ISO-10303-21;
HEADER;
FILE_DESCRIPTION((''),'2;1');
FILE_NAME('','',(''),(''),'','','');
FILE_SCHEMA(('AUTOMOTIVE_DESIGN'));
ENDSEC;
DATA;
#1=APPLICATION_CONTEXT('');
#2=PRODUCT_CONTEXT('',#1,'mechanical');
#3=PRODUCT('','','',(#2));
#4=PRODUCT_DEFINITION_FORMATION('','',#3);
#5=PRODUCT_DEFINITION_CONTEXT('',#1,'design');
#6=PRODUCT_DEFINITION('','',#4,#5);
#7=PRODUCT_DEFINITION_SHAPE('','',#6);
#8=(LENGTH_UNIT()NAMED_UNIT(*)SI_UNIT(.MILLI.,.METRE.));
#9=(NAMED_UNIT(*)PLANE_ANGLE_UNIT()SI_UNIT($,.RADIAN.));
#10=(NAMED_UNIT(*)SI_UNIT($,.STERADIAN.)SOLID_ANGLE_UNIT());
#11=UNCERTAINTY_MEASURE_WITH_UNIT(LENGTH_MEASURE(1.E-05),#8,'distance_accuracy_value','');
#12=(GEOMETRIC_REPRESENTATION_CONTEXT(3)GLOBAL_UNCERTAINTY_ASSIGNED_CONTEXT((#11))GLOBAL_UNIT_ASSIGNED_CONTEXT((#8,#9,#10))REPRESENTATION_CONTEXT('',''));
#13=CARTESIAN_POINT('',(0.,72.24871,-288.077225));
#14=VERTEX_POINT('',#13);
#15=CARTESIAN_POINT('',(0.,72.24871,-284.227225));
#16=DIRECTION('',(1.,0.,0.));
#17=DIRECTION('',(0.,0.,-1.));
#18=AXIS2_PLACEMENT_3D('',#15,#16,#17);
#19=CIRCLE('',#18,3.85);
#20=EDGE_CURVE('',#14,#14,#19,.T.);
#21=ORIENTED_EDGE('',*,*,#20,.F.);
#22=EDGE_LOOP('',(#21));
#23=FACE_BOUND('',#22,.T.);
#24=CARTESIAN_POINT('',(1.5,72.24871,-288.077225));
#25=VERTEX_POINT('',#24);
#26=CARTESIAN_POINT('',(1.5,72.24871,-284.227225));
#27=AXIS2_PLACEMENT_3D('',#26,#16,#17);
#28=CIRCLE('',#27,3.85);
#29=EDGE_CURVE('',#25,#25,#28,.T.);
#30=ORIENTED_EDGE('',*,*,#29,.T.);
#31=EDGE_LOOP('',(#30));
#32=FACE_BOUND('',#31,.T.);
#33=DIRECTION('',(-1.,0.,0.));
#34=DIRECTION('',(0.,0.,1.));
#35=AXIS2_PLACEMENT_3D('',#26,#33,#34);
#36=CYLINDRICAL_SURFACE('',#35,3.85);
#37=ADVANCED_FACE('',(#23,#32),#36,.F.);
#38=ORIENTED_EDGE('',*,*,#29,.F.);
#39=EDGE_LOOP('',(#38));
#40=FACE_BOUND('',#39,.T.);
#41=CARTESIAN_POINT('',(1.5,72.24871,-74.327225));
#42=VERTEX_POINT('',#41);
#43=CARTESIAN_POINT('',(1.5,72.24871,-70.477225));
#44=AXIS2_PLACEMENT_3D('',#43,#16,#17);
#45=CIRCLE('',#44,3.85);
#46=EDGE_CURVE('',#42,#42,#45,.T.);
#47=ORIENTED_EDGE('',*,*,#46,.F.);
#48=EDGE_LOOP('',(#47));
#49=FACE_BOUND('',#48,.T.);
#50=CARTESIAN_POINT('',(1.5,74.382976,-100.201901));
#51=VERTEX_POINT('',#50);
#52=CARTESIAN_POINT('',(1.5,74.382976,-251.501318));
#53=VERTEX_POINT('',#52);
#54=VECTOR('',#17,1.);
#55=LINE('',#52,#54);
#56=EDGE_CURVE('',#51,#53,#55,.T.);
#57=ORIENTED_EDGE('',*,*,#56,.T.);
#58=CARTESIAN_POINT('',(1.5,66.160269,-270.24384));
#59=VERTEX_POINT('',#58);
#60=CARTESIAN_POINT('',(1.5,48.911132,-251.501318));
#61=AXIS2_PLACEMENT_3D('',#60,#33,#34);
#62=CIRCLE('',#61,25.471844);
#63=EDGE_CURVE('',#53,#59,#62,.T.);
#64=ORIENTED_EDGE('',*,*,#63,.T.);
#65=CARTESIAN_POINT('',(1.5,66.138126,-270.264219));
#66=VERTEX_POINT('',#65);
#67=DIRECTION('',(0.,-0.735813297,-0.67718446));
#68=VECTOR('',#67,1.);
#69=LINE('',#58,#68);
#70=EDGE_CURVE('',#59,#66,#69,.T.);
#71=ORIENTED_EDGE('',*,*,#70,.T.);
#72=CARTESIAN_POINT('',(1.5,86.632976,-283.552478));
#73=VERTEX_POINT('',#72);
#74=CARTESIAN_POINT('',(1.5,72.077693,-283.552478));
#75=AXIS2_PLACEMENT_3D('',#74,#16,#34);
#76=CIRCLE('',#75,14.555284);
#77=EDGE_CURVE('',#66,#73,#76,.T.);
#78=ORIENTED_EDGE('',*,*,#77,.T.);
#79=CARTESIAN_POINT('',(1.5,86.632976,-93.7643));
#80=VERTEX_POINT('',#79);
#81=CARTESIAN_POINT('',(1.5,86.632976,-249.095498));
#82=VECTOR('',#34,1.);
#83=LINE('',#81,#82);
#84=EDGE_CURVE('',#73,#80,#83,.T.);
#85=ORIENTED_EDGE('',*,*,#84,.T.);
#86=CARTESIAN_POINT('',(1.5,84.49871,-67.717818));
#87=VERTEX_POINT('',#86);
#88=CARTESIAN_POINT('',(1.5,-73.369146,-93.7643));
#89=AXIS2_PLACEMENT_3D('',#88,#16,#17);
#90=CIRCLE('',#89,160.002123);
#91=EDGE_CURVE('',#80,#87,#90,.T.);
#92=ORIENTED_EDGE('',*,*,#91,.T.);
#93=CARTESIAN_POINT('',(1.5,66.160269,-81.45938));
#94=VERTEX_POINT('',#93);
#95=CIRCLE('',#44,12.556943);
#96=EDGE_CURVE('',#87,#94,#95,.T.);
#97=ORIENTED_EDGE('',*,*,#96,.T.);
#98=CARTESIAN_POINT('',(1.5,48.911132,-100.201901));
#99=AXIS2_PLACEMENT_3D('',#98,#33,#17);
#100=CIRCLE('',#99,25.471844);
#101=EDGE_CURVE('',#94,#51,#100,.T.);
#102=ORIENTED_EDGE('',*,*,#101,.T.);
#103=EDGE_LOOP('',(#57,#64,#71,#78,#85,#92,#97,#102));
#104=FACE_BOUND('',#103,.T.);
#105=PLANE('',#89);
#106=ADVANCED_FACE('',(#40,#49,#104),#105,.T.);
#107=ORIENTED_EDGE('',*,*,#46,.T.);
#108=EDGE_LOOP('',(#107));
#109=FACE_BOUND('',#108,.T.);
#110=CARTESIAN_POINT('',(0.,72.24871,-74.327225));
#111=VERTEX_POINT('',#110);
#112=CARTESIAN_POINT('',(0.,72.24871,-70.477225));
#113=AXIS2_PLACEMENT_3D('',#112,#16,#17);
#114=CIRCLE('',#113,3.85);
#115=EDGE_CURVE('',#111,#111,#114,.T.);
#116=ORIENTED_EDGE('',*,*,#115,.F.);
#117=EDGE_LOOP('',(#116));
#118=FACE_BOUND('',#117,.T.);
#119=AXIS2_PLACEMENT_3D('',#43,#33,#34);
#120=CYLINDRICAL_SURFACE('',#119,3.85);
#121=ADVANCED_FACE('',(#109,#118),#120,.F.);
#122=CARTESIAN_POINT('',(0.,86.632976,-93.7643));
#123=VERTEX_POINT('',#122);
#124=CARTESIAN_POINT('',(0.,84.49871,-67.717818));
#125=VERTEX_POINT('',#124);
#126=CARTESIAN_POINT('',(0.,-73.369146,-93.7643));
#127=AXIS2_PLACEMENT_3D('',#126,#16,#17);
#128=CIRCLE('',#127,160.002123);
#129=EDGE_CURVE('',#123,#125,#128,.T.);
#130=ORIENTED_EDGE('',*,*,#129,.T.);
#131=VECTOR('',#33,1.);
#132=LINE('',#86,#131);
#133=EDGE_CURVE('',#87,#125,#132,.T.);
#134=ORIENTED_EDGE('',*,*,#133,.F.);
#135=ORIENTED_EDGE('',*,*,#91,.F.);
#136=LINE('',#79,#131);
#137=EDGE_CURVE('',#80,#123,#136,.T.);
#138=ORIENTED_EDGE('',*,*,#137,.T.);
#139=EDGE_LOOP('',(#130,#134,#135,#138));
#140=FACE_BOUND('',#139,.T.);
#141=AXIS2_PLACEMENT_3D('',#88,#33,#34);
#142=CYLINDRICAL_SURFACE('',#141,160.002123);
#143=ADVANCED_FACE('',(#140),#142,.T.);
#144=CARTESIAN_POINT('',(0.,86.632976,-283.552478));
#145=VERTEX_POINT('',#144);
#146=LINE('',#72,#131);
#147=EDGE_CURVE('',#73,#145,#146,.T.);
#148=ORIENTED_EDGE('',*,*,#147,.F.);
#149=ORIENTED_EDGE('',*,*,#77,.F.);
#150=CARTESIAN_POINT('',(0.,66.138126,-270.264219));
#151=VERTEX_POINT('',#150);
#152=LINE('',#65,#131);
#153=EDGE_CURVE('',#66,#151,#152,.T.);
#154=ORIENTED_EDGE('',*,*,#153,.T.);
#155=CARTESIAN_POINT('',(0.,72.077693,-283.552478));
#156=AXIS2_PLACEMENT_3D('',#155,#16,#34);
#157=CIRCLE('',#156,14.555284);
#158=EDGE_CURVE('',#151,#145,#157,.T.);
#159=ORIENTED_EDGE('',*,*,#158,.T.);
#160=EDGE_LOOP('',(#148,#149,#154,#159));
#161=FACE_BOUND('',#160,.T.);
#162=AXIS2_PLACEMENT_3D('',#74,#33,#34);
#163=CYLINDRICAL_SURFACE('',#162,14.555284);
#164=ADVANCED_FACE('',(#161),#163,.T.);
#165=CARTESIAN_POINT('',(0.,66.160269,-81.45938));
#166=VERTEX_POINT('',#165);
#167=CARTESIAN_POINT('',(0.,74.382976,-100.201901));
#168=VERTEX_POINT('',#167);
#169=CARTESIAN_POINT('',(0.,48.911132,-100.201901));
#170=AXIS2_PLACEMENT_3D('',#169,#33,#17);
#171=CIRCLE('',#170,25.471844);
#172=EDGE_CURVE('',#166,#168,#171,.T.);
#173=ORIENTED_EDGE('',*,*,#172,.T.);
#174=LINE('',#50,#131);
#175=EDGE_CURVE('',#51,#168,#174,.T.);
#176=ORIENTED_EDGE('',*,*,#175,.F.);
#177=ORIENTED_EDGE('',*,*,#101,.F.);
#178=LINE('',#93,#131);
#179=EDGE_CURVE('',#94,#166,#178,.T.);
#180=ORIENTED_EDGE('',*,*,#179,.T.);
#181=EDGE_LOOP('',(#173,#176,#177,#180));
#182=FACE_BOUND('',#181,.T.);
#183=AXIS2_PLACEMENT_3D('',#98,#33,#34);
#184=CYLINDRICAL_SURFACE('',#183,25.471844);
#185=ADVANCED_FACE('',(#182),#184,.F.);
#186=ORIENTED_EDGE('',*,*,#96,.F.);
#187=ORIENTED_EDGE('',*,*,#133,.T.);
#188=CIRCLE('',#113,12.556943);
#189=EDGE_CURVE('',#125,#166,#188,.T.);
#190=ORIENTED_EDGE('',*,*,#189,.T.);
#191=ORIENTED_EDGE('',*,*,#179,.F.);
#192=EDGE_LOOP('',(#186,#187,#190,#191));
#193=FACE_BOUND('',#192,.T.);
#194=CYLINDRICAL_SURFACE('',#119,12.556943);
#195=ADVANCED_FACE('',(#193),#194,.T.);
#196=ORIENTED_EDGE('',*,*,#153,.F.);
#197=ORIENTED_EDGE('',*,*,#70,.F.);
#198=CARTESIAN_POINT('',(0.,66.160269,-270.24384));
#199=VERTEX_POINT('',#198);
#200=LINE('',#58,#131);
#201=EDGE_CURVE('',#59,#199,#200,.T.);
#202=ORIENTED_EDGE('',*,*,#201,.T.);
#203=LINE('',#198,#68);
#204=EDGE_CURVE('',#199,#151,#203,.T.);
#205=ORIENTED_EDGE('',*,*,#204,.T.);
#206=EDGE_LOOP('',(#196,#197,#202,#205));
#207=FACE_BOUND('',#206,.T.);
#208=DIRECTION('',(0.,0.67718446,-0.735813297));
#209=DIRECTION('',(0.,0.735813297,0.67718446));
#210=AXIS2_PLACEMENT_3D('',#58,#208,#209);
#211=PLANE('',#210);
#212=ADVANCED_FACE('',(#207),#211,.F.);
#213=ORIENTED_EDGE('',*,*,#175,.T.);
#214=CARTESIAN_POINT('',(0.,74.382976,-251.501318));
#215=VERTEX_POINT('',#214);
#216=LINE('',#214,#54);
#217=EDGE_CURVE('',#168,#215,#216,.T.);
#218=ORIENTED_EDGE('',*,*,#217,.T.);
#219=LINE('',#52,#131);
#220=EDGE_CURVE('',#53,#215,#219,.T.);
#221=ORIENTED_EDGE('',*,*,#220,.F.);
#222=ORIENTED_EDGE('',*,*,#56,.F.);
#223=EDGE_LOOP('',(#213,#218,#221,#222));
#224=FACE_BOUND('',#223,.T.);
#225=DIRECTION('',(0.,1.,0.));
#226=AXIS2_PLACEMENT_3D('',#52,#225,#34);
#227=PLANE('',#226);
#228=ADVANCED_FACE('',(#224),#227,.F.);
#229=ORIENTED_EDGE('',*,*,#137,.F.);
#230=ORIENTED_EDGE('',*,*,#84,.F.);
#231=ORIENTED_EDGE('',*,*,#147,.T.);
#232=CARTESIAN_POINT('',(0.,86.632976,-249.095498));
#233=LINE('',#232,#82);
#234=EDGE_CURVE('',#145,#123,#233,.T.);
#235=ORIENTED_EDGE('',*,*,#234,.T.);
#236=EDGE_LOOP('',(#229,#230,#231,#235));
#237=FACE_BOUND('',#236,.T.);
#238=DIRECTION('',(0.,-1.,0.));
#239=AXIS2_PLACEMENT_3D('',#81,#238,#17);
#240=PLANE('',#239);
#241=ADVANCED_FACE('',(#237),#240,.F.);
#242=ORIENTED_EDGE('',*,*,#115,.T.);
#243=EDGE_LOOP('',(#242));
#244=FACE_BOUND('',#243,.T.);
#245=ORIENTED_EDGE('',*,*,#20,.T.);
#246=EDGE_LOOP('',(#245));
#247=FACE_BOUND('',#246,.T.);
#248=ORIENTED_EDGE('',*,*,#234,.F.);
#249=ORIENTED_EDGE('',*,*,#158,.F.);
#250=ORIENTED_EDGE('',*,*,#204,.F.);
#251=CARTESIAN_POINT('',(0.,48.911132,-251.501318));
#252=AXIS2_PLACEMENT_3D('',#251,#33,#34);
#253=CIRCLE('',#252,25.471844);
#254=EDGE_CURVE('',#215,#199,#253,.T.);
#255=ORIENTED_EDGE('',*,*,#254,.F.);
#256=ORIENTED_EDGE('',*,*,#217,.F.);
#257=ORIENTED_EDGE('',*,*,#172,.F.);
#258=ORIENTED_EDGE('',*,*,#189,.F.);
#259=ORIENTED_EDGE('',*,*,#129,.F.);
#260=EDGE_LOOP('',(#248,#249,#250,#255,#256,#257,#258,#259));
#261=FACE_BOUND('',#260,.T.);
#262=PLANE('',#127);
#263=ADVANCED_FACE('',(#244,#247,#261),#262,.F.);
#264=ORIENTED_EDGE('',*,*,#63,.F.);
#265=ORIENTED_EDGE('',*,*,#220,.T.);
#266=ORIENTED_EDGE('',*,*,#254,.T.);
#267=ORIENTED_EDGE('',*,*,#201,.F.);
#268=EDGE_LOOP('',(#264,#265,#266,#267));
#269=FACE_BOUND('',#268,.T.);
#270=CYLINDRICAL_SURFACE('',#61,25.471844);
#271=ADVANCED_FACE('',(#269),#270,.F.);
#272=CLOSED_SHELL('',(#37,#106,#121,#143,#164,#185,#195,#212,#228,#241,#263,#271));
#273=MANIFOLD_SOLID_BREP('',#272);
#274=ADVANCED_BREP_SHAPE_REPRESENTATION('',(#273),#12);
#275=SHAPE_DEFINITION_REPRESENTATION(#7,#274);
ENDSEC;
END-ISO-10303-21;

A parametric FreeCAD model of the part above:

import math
import FreeCAD as App
import Part
import Sketcher

doc = App.newDocument("Part")
params = doc.addObject("Spreadsheet::Sheet", "Params")
for row, (alias, value) in enumerate([
    ("sketch1_diameter", "7.7 mm"),
    ("pad1_length", "1.5 mm"),
], start=1):
    params.set(f"A{row}", alias)
    params.set(f"B{row}", "=" + value)
    params.setAlias(f"B{row}", alias)

body = doc.addObject("PartDesign::Body", "Body")

# Sketch on YZ plane
sketch1 = doc.addObject("Sketcher::SketchObject", "Sketch")
body.addObject(sketch1)
sketch1.AttachmentSupport = (doc.YZ_Plane, [""])
sketch1.MapMode = "FlatFace"
sketch1.addGeometry(Part.LineSegment(App.Vector(74.383, -100.202, 0), App.Vector(74.383, -251.501, 0)), False)
sketch1.addGeometry(Part.ArcOfCircle(Part.Circle(App.Vector(48.911, -251.501, 0), App.Vector(0, 0, 1), 25.472), math.radians(-47), math.radians(0)), False)
sketch1.addGeometry(Part.LineSegment(App.Vector(66.16, -270.244, 0), App.Vector(66.138, -270.264, 0)), False)
sketch1.addGeometry(Part.ArcOfCircle(Part.Circle(App.Vector(72.078, -283.552, 0), App.Vector(0, 0, 1), 14.555), math.radians(114), math.radians(360)), False)
sketch1.addGeometry(Part.LineSegment(App.Vector(86.633, -283.552, 0), App.Vector(86.633, -93.764, 0)), False)
sketch1.addGeometry(Part.ArcOfCircle(Part.Circle(App.Vector(-73.369, -93.764, 0), App.Vector(0, 0, 1), 160.002), math.radians(0), math.radians(9.37)), False)
sketch1.addGeometry(Part.ArcOfCircle(Part.Circle(App.Vector(72.249, -70.477, 0), App.Vector(0, 0, 1), 12.557), math.radians(13), math.radians(241)), False)
sketch1.addGeometry(Part.ArcOfCircle(Part.Circle(App.Vector(48.911, -100.202, 0), App.Vector(0, 0, 1), 25.472), math.radians(0), math.radians(47)), False)
sketch1.addGeometry(Part.Circle(App.Vector(72.249, -284.227, 0), App.Vector(0, 0, 1), 3.85), False)
sketch1.addGeometry(Part.Circle(App.Vector(72.249, -70.477, 0), App.Vector(0, 0, 1), 3.85), False)
sketch1.addConstraint(Sketcher.Constraint("Tangent", 0, 2, 1, 2))
sketch1.addConstraint(Sketcher.Constraint("Tangent", 1, 1, 2, 1))
sketch1.addConstraint(Sketcher.Constraint("Coincident", 2, 2, 3, 1))
sketch1.addConstraint(Sketcher.Constraint("Tangent", 3, 2, 4, 1))
sketch1.addConstraint(Sketcher.Constraint("Tangent", 4, 2, 5, 1))
sketch1.addConstraint(Sketcher.Constraint("Coincident", 5, 2, 6, 1))
sketch1.addConstraint(Sketcher.Constraint("Coincident", 6, 2, 7, 2))
sketch1.addConstraint(Sketcher.Constraint("Tangent", 7, 1, 0, 1))
sketch1.addConstraint(Sketcher.Constraint("Vertical", 0))
sketch1.addConstraint(Sketcher.Constraint("Vertical", 4))
sketch1.addConstraint(Sketcher.Constraint("Coincident", 9, 3, 6, 3))
sketch1.addConstraint(Sketcher.Constraint("Equal", 1, 7))
sketch1.addConstraint(Sketcher.Constraint("Equal", 8, 9))
sketch1.addConstraint(Sketcher.Constraint("Vertical", 6, 3, 8, 3))
sketch1.addConstraint(Sketcher.Constraint("Vertical", 1, 1, 6, 2))
sketch1.addConstraint(Sketcher.Constraint("Diameter", 8, 7.7))
sketch1.addConstraint(Sketcher.Constraint("DistanceY", 8, 3, 6, 3, 213.75))
sketch1.addConstraint(Sketcher.Constraint("DistanceX", 0, 2, 3, 2, 12.25))
sketch1.addConstraint(Sketcher.Constraint("DistanceX", 6, 3, 5, 2, 12.25))
sketch1.addConstraint(Sketcher.Constraint("Radius", 1, 25.471844))
sketch1.addConstraint(Sketcher.Constraint("Radius", 3, 14.555284))
sketch1.addConstraint(Sketcher.Constraint("Radius", 5, 160.002122))
sketch1.addConstraint(Sketcher.Constraint("Radius", 6, 12.556943))
sketch1.addConstraint(Sketcher.Constraint("DistanceY", 5, 3, -1, 1, 93.7643))
sketch1.addConstraint(Sketcher.Constraint("DistanceY", 7, 3, -1, 1, 100.201901))
sketch1.addConstraint(Sketcher.Constraint("DistanceY", 2, 2, 0, 2, 18.7629))
sketch1.addConstraint(Sketcher.Constraint("DistanceY", 0, 2, 0, 1, 151.299417))
sketch1.addConstraint(Sketcher.Constraint("DistanceX", -1, 1, 6, 3, 72.24871))
sketch1.addConstraint(Sketcher.Constraint("DistanceX", -1, 1, 1, 1, 66.160269))
sketch1.setExpression("Constraints[15]", "Params.sketch1_diameter")
pad1 = doc.addObject("PartDesign::Pad", "Pad")
body.addObject(pad1)
pad1.Profile = sketch1
pad1.setExpression("Length", "Params.pad1_length")

doc.recompute()
